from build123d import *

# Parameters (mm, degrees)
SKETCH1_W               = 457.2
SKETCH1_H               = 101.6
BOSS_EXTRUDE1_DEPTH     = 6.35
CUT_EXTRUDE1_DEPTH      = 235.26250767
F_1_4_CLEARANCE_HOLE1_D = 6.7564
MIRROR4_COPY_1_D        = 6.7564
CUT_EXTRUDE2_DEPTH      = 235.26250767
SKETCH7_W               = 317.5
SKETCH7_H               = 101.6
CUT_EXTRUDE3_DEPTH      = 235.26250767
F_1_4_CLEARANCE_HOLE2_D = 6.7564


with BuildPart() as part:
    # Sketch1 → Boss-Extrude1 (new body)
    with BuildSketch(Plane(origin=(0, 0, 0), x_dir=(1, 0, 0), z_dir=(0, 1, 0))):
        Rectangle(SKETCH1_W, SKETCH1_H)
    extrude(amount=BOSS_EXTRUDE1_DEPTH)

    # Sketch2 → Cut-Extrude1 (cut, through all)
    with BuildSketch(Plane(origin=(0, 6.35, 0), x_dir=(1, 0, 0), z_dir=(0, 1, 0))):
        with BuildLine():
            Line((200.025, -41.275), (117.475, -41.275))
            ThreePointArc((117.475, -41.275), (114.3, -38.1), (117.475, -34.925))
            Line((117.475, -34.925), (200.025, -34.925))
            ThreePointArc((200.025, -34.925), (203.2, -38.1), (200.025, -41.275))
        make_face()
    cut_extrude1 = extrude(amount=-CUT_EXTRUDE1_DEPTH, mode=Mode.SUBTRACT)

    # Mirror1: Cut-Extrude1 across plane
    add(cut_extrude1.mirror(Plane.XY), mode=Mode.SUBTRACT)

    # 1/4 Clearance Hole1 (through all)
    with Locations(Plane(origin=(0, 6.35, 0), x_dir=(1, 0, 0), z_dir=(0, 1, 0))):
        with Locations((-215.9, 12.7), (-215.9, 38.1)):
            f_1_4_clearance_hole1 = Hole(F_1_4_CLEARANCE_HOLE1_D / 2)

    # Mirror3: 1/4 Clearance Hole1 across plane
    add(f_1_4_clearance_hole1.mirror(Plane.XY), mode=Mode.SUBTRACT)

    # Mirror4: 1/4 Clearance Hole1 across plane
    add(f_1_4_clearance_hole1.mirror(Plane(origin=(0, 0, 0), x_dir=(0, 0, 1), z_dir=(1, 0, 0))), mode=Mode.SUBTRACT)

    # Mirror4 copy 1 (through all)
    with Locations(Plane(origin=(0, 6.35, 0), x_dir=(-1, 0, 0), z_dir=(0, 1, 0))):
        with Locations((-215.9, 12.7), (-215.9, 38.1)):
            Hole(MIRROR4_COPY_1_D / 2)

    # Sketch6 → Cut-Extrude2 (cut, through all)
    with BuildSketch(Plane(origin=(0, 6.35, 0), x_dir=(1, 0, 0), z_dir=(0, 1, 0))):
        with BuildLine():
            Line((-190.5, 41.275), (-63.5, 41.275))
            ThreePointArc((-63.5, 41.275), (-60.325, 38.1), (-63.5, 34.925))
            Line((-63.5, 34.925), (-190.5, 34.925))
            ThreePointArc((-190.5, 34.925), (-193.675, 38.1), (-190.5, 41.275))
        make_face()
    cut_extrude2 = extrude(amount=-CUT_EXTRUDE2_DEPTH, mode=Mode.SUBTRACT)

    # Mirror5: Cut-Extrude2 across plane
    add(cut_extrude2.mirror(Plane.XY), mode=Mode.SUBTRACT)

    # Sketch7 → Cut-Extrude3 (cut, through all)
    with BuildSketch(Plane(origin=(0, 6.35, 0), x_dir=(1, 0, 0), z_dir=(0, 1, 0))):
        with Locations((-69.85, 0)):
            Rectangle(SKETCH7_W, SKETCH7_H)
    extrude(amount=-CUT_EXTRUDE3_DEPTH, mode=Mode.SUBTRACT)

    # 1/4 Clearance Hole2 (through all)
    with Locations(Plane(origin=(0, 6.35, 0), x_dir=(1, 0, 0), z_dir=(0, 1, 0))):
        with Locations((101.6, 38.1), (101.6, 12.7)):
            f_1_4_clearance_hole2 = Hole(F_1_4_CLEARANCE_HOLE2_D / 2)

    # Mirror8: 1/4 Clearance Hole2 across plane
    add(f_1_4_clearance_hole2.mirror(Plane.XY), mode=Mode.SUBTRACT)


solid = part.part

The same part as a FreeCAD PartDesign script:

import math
import FreeCAD as App
import Part
import Sketcher
Q = App.Units.Quantity


def add_polygon(sketch, points):
    """Adds a closed chain of lines whose ends are joined by coincident constraints."""
    first, n = sketch.GeometryCount, len(points)
    for a, b in zip(points, points[1:] + points[:1]):
        sketch.addGeometry(Part.LineSegment(App.Vector(*a, 0), App.Vector(*b, 0)), False)
    for i in range(n):
        sketch.addConstraint(Sketcher.Constraint("Coincident", first + i, 2, first + (i + 1) % n, 1))

doc = App.newDocument("Part")
body = doc.addObject("PartDesign::Body", "Body")

# Sketch on XZ plane
sketch1 = doc.addObject("Sketcher::SketchObject", "Sketch")
body.addObject(sketch1)
sketch1.AttachmentSupport = (doc.XZ_Plane, [""])
sketch1.MapMode = "FlatFace"
add_polygon(sketch1, [(-229, -51), (-229, 51), (229, 51), (229, -51)])  # lines 0-3
sketch1.addConstraint([
    Sketcher.Constraint("Vertical", 0),
    Sketcher.Constraint("Horizontal", 1),
    Sketcher.Constraint("Vertical", 2),
    Sketcher.Constraint("Horizontal", 3),
    Sketcher.Constraint("Symmetric", 0, 2, 2, 2, -1, 1),
    Sketcher.Constraint("DistanceX", 1, 1, 1, 2, Q("18 in")),
    Sketcher.Constraint("DistanceY", 0, 1, 0, 2, Q("4 in")),
])
pad1 = doc.addObject("PartDesign::Pad", "Pad")
body.addObject(pad1)
pad1.Profile = sketch1
pad1.Length = Q("0.25 in")
pad1.Reversed = True

# Sketch on XZ plane
sketch2 = doc.addObject("Sketcher::SketchObject", "Sketch001")
body.addObject(sketch2)
sketch2.AttachmentSupport = (doc.XZ_Plane, [""])
sketch2.MapMode = "FlatFace"
sketch2.AttachmentOffset = App.Placement(App.Vector(0, 0, -0.25 * 25.4), App.Rotation())
sketch2.addGeometry([
    Part.LineSegment(App.Vector(117.5, 41.3, 0), App.Vector(200, 41.3, 0)),
    Part.ArcOfCircle(Part.Circle(App.Vector(200, 38.1, 0), App.Vector(0, 0, 1), 3.2), math.radians(-90), math.radians(90)),
    Part.LineSegment(App.Vector(200, 34.9, 0), App.Vector(117.5, 34.9, 0)),
    Part.ArcOfCircle(Part.Circle(App.Vector(117.5, 38.1, 0), App.Vector(0, 0, 1), 3.2), math.radians(90), math.radians(270)),
], False)
sketch2.addConstraint([
    Sketcher.Constraint("Tangent", 0, 2, 1, 2),
    Sketcher.Constraint("Tangent", 1, 1, 2, 1),
    Sketcher.Constraint("Tangent", 2, 2, 3, 2),
    Sketcher.Constraint("Tangent", 3, 1, 0, 1),
    Sketcher.Constraint("Horizontal", 0),
    Sketcher.Constraint("Horizontal", 2),
    Sketcher.Constraint("Radius", 1, Q("0.125 in")),
    Sketcher.Constraint("DistanceX", 0, 1, 0, 2, Q("3.25 in")),
    Sketcher.Constraint("DistanceY", -1, 1, 1, 3, Q("1.5 in")),
    Sketcher.Constraint("DistanceX", -1, 1, 1, 3, Q("7.875 in")),
])
pocket1 = doc.addObject("PartDesign::Pocket", "Pocket")
body.addObject(pocket1)
pocket1.Profile = sketch2
pocket1.Type = "ThroughAll"
pocket1.Reversed = True
doc.recompute()

mirrored = doc.addObject("PartDesign::Mirrored", "Mirrored")
body.addObject(mirrored)
mirrored.Originals = [pocket1]
mirrored.MirrorPlane = (doc.XY_Plane, [""])
body.Tip = mirrored

# Sketch on XZ plane
sketch3 = doc.addObject("Sketcher::SketchObject", "Sketch002")
body.addObject(sketch3)
sketch3.AttachmentSupport = (doc.XZ_Plane, [""])
sketch3.MapMode = "FlatFace"
sketch3.AttachmentOffset = App.Placement(App.Vector(0, 0, -0.25 * 25.4), App.Rotation())
sketch3.addGeometry([
    Part.Circle(App.Vector(-215.9, -12.7, 0), App.Vector(0, 0, 1), 3.4),
    Part.Circle(App.Vector(-215.9, -38.1, 0), App.Vector(0, 0, 1), 3.4),
], False)
sketch3.addConstraint([
    Sketcher.Constraint("Equal", 0, 1),
    Sketcher.Constraint("Vertical", 0, 3, 1, 3),
    Sketcher.Constraint("Diameter", 0, Q("0.266 in")),
    Sketcher.Constraint("DistanceY", 1, 3, 0, 3, Q("1 in")),
    Sketcher.Constraint("DistanceX", 0, 3, -1, 1, Q("8.5 in")),
    Sketcher.Constraint("DistanceY", 0, 3, -1, 1, Q("0.5 in")),
])
doc.recompute()
hole = doc.addObject("PartDesign::Hole", "Hole")
body.addObject(hole)
hole.Profile = sketch3
hole.ThreadType = "None"
hole.Diameter = Q("0.266 in")
hole.DepthType = "ThroughAll"
hole.Reversed = True
doc.recompute()

mirrored2 = doc.addObject("PartDesign::Mirrored", "Mirrored001")
body.addObject(mirrored2)
mirrored2.Originals = [hole]
mirrored2.MirrorPlane = (doc.XY_Plane, [""])
body.Tip = mirrored2
doc.recompute()

mirrored3 = doc.addObject("PartDesign::Mirrored", "Mirrored002")
body.addObject(mirrored3)
mirrored3.Originals = [hole]
mirrored3.MirrorPlane = (doc.YZ_Plane, [""])
body.Tip = mirrored3

# Sketch on XZ plane
sketch4 = doc.addObject("Sketcher::SketchObject", "Sketch003")
body.addObject(sketch4)
sketch4.AttachmentSupport = (doc.XZ_Plane, [""])
sketch4.MapMode = "FlatFace"
sketch4.AttachmentOffset = App.Placement(App.Vector(0, 0, -0.25 * 25.4), App.Rotation())
sketch4.addGeometry([
    Part.Circle(App.Vector(215.9, 12.7, 0), App.Vector(0, 0, 1), 3.4),
    Part.Circle(App.Vector(215.9, 38.1, 0), App.Vector(0, 0, 1), 3.4),
], False)
sketch4.addConstraint([
    Sketcher.Constraint("Equal", 0, 1),
    Sketcher.Constraint("Vertical", 0, 3, 1, 3),
    Sketcher.Constraint("Diameter", 0, Q("0.266 in")),
    Sketcher.Constraint("DistanceY", 0, 3, 1, 3, Q("1 in")),
    Sketcher.Constraint("DistanceX", -1, 1, 0, 3, Q("8.5 in")),
    Sketcher.Constraint("DistanceY", -1, 1, 0, 3, Q("0.5 in")),
])
doc.recompute()
hole2 = doc.addObject("PartDesign::Hole", "Hole001")
body.addObject(hole2)
hole2.Profile = sketch4
hole2.ThreadType = "None"
hole2.Diameter = Q("0.266 in")
hole2.DepthType = "ThroughAll"
hole2.Reversed = True

# Sketch on XZ plane
sketch5 = doc.addObject("Sketcher::SketchObject", "Sketch004")
body.addObject(sketch5)
sketch5.AttachmentSupport = (doc.XZ_Plane, [""])
sketch5.MapMode = "FlatFace"
sketch5.AttachmentOffset = App.Placement(App.Vector(0, 0, -0.25 * 25.4), App.Rotation())
sketch5.addGeometry([
    Part.LineSegment(App.Vector(-63.5, -41.3, 0), App.Vector(-190.5, -41.3, 0)),
    Part.ArcOfCircle(Part.Circle(App.Vector(-190.5, -38.1, 0), App.Vector(0, 0, 1), 3.2), math.radians(90), math.radians(270)),
    Part.LineSegment(App.Vector(-190.5, -34.9, 0), App.Vector(-63.5, -34.9, 0)),
    Part.ArcOfCircle(Part.Circle(App.Vector(-63.5, -38.1, 0), App.Vector(0, 0, 1), 3.2), math.radians(-90), math.radians(90)),
], False)
sketch5.addConstraint([
    Sketcher.Constraint("Tangent", 0, 2, 1, 2),
    Sketcher.Constraint("Tangent", 1, 1, 2, 1),
    Sketcher.Constraint("Tangent", 2, 2, 3, 2),
    Sketcher.Constraint("Tangent", 3, 1, 0, 1),
    Sketcher.Constraint("Horizontal", 0),
    Sketcher.Constraint("Horizontal", 2),
    Sketcher.Constraint("DistanceX", 0, 2, 0, 1, Q("5 in")),
    Sketcher.Constraint("Radius", 1, Q("0.125 in")),
    Sketcher.Constraint("DistanceX", 1, 3, -1, 1, Q("7.5 in")),
    Sketcher.Constraint("DistanceY", 1, 3, -1, 1, Q("1.5 in")),
])
pocket2 = doc.addObject("PartDesign::Pocket", "Pocket001")
body.addObject(pocket2)
pocket2.Profile = sketch5
pocket2.Type = "ThroughAll"
pocket2.Reversed = True
doc.recompute()

mirrored4 = doc.addObject("PartDesign::Mirrored", "Mirrored003")
body.addObject(mirrored4)
mirrored4.Originals = [pocket2]
mirrored4.MirrorPlane = (doc.XY_Plane, [""])
body.Tip = mirrored4

# Sketch on XZ plane
sketch6 = doc.addObject("Sketcher::SketchObject", "Sketch005")
body.addObject(sketch6)
sketch6.AttachmentSupport = (doc.XZ_Plane, [""])
sketch6.MapMode = "FlatFace"
sketch6.AttachmentOffset = App.Placement(App.Vector(0, 0, -0.25 * 25.4), App.Rotation())
add_polygon(sketch6, [(-229, -51), (-229, 51), (89, 51), (89, -51)])  # lines 0-3
sketch6.addConstraint([
    Sketcher.Constraint("Vertical", 0),
    Sketcher.Constraint("Horizontal", 1),
    Sketcher.Constraint("Vertical", 2),
    Sketcher.Constraint("Horizontal", 3),
    Sketcher.Constraint("DistanceY", 0, 1, 0, 2, Q("4 in")),
    Sketcher.Constraint("DistanceX", 1, 1, 1, 2, Q("12.5 in")),
    Sketcher.Constraint("DistanceX", 0, 2, -1, 1, Q("9 in")),
    Sketcher.Constraint("DistanceY", -1, 1, 0, 2, Q("2 in")),
])
pocket3 = doc.addObject("PartDesign::Pocket", "Pocket002")
body.addObject(pocket3)
pocket3.Profile = sketch6
pocket3.Type = "ThroughAll"
pocket3.Reversed = True

# Sketch on XZ plane
sketch7 = doc.addObject("Sketcher::SketchObject", "Sketch006")
body.addObject(sketch7)
sketch7.AttachmentSupport = (doc.XZ_Plane, [""])
sketch7.MapMode = "FlatFace"
sketch7.AttachmentOffset = App.Placement(App.Vector(0, 0, -0.25 * 25.4), App.Rotation())
sketch7.addGeometry([
    Part.Circle(App.Vector(101.6, -38.1, 0), App.Vector(0, 0, 1), 3.4),
    Part.Circle(App.Vector(101.6, -12.7, 0), App.Vector(0, 0, 1), 3.4),
], False)
sketch7.addConstraint([
    Sketcher.Constraint("Equal", 0, 1),
    Sketcher.Constraint("Vertical", 0, 3, 1, 3),
    Sketcher.Constraint("Diameter", 0, Q("0.266 in")),
    Sketcher.Constraint("DistanceX", -1, 1, 0, 3, Q("4 in")),
    Sketcher.Constraint("DistanceY", 0, 3, 1, 3, Q("1 in")),
    Sketcher.Constraint("DistanceY", 0, 3, -1, 1, Q("1.5 in")),
])
doc.recompute()
hole3 = doc.addObject("PartDesign::Hole", "Hole002")
body.addObject(hole3)
hole3.Profile = sketch7
hole3.ThreadType = "None"
hole3.Diameter = Q("0.266 in")
hole3.DepthType = "ThroughAll"
hole3.Reversed = True
doc.recompute()

mirrored5 = doc.addObject("PartDesign::Mirrored", "Mirrored004")
body.addObject(mirrored5)
mirrored5.Originals = [hole3]
mirrored5.MirrorPlane = (doc.XY_Plane, [""])
body.Tip = mirrored5

doc.recompute()
